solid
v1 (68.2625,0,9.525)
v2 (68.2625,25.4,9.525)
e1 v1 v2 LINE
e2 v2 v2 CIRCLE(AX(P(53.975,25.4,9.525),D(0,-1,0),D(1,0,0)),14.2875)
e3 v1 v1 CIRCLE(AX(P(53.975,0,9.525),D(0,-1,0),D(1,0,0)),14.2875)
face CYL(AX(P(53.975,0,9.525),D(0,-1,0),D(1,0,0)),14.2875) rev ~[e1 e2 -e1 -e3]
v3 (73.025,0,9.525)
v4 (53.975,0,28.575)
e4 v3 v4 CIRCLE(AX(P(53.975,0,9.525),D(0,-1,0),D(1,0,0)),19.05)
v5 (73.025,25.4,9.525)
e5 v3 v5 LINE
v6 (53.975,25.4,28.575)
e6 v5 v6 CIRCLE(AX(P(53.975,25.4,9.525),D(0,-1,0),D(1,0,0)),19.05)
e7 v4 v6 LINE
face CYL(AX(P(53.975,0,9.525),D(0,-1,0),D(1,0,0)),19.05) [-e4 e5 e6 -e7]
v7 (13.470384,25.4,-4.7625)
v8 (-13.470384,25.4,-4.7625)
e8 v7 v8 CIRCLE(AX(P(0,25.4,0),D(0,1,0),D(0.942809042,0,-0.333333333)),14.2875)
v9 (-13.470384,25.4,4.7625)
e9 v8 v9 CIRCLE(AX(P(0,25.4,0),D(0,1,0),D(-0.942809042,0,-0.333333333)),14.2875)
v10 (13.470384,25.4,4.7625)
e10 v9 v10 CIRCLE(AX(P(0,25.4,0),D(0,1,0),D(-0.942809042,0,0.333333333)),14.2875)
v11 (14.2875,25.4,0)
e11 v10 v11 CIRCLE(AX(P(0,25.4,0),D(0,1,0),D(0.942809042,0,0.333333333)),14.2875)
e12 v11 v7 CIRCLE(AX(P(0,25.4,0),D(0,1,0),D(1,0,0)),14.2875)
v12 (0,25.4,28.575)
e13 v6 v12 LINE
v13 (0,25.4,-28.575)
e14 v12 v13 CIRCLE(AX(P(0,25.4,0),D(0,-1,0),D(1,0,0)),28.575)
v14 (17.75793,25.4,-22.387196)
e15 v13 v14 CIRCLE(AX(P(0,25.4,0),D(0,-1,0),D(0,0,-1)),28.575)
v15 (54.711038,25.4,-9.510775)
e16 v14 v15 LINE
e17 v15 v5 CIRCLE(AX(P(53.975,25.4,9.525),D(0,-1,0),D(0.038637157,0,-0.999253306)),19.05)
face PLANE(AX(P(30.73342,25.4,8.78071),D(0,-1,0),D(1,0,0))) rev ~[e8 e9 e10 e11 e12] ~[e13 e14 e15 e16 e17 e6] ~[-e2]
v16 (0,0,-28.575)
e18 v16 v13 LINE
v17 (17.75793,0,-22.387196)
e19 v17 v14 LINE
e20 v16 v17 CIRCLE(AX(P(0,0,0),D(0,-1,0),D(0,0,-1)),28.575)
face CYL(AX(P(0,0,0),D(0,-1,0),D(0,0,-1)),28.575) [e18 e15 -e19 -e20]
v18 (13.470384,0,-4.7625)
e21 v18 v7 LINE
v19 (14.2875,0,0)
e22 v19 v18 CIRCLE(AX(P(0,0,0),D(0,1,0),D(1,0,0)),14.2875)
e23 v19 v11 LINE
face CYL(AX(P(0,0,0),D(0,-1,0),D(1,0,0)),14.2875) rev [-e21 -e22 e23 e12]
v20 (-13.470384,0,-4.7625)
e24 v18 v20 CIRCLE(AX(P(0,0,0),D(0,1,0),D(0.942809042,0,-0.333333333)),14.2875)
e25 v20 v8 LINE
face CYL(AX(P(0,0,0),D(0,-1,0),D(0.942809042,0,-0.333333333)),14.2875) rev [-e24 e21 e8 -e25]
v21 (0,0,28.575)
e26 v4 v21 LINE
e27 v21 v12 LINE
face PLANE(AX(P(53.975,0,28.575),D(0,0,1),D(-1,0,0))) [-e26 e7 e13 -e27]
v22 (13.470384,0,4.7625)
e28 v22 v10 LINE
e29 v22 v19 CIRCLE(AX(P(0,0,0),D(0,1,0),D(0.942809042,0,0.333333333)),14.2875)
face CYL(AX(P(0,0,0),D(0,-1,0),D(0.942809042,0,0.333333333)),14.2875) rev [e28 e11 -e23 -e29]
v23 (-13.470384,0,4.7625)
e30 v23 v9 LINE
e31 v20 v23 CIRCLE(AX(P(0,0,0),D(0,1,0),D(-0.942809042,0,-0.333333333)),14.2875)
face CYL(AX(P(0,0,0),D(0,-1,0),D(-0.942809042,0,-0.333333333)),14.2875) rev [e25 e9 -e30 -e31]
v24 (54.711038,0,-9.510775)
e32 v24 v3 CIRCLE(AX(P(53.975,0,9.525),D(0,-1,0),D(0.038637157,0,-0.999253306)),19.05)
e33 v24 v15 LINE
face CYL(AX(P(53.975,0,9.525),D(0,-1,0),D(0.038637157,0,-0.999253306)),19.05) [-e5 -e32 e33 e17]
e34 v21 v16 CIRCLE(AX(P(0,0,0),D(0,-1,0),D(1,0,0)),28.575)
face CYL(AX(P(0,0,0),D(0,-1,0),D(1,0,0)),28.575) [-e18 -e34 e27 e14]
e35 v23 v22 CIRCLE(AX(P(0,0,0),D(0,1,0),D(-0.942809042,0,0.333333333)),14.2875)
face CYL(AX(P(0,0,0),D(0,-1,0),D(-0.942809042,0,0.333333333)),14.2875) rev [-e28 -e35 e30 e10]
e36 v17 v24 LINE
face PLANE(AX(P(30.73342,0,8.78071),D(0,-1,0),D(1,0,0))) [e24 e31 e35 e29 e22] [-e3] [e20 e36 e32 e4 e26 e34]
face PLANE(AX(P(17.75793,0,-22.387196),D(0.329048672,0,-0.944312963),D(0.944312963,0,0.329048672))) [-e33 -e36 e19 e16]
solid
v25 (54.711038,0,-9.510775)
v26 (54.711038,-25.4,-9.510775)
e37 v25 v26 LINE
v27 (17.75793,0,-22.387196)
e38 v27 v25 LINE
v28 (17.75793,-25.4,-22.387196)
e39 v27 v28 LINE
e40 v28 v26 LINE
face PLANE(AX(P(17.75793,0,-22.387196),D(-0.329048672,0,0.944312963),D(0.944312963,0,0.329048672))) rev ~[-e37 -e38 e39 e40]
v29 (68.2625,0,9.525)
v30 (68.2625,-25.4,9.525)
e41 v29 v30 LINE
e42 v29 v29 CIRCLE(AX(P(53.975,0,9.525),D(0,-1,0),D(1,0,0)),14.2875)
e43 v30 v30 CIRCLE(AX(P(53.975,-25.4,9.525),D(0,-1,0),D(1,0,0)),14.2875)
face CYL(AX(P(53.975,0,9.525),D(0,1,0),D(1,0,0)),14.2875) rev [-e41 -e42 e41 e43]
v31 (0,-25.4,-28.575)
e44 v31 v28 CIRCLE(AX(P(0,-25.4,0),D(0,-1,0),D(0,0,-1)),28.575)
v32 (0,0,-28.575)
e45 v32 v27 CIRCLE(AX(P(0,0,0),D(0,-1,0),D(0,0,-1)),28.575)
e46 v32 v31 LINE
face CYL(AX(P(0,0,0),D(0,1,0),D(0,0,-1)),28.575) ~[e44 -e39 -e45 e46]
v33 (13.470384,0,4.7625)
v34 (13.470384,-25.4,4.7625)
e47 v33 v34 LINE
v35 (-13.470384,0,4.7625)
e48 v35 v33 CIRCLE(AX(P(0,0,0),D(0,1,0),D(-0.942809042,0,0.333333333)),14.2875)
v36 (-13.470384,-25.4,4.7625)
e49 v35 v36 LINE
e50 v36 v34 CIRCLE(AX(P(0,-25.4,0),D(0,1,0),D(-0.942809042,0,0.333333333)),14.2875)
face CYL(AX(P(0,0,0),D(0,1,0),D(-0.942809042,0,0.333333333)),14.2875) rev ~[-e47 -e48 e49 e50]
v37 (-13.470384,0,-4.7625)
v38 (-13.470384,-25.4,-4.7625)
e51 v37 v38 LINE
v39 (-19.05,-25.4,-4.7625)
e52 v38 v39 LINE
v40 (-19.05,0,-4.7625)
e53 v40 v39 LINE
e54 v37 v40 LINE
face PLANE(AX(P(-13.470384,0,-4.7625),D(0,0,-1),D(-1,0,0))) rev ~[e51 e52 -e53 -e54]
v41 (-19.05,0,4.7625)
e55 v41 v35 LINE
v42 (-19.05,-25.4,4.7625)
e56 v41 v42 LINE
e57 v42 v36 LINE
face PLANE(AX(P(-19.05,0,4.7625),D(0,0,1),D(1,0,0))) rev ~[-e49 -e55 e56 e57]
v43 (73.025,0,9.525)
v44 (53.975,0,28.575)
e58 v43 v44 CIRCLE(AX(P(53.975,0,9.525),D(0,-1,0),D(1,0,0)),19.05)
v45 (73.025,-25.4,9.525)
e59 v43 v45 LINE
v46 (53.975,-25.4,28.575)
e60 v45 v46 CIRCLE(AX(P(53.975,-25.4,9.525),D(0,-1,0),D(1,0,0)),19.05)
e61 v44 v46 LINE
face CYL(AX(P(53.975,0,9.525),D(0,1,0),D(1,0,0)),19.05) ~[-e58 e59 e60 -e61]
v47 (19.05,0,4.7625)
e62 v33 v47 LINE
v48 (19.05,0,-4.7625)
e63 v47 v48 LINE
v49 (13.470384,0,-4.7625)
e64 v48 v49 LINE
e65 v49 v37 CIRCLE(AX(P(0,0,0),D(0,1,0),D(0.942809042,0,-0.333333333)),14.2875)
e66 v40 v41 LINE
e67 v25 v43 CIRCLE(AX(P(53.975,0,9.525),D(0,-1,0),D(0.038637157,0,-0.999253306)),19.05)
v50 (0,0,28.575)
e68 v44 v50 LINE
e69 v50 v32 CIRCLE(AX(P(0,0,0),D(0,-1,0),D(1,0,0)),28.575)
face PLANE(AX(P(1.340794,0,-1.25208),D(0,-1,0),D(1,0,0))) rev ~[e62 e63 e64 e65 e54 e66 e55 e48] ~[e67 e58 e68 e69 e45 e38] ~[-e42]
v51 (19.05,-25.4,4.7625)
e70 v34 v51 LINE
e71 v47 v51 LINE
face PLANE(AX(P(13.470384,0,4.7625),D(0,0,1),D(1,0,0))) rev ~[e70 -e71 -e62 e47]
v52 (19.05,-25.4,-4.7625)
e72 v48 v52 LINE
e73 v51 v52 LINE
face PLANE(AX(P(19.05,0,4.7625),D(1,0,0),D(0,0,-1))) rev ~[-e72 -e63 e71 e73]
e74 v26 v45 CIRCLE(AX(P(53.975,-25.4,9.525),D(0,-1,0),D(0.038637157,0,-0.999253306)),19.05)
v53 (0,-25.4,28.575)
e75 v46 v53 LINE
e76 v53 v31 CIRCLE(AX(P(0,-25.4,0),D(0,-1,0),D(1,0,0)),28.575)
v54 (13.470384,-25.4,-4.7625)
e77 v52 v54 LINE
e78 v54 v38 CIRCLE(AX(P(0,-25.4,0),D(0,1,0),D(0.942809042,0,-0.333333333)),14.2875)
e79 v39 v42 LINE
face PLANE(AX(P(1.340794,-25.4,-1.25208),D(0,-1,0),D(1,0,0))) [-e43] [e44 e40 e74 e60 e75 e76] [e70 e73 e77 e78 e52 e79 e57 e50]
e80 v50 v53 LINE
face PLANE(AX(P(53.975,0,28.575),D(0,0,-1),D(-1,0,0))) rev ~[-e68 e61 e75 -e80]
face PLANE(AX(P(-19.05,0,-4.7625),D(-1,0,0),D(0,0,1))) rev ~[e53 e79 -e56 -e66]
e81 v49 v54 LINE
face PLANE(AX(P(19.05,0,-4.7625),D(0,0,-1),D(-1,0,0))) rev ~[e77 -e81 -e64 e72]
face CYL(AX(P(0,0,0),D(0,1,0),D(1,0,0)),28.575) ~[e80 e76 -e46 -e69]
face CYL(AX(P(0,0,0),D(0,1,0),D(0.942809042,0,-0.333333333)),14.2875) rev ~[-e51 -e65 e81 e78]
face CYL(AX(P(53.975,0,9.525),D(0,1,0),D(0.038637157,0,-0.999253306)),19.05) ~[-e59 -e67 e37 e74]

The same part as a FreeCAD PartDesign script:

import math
import FreeCAD as App
import Part
import Sketcher

V = App.Vector
Q = App.Units.Quantity

doc = App.newDocument("Part")
params = doc.addObject("Spreadsheet::Sheet", "Params")
for row, (alias, value) in enumerate([
    ("sketch1_radius", "0.75 in"),
    ("sketch1_diameter", "1.125 in"),
    ("sketch1_radius2", "1.125 in"),
    ("sketch1_width", "2.125 in"),
    ("pad1_length", "1 in"),
    ("sketch2_radius", "0.75 in"),
    ("sketch2_diameter", "1.125 in"),
    ("sketch2_radius2", "1.125 in"),
    ("sketch2_width", "2.125 in"),
    ("sketch2_height", "0.375 in"),
    ("pad2_length", "1 in"),
], start=1):
    params.set(f"A{row}", alias)
    params.set(f"B{row}", "=" + value)
    params.setAlias(f"B{row}", alias)

body = doc.addObject("PartDesign::Body", "Body")

# Sketch on XZ plane
sketch1 = doc.addObject("Sketcher::SketchObject", "Sketch")
body.addObject(sketch1)
sketch1.AttachmentSupport = (doc.XZ_Plane, [""])
sketch1.MapMode = "FlatFace"
sketch1.addGeometry([
    Part.LineSegment(V(17.8, -22.4, 0), V(54.7, -9.5, 0)),  # 0
    Part.ArcOfCircle(Part.Circle(V(54, 9.5, 0), V(0, 0, 1), 19.1), math.radians(-88), math.radians(0)),  # 1
    Part.ArcOfCircle(Part.Circle(V(54, 9.5, 0), V(0, 0, 1), 19.1), math.radians(0), math.radians(90)),  # 2
    Part.LineSegment(V(54, 28.6, 0), V(0, 28.6, 0)),  # 3
    Part.ArcOfCircle(Part.Circle(V(0, 0, 0), V(0, 0, 1), 28.6), math.radians(90), math.radians(270)),  # 4
    Part.ArcOfCircle(Part.Circle(V(0, 0, 0), V(0, 0, 1), 28.6), math.radians(-90), math.radians(-52)),  # 5
    Part.ArcOfCircle(Part.Circle(V(0, 0, 0), V(0, 0, 1), 14.3), math.radians(19), math.radians(161)),  # 6
    Part.ArcOfCircle(Part.Circle(V(0, 0, 0), V(0, 0, 1), 14.3), math.radians(0), math.radians(19.47)),  # 7
    Part.ArcOfCircle(Part.Circle(V(0, 0, 0), V(0, 0, 1), 14.3), math.radians(-19.47), math.radians(0)),  # 8
    Part.ArcOfCircle(Part.Circle(V(0, 0, 0), V(0, 0, 1), 14.3), math.radians(-161), math.radians(-19)),  # 9
    Part.ArcOfCircle(Part.Circle(V(0, 0, 0), V(0, 0, 1), 14.3), math.radians(161), math.radians(199)),  # 10
    Part.Circle(V(54, 9.5, 0), V(0, 0, 1), 14.3),  # 11
], False)
sketch1.addConstraint([
    Sketcher.Constraint("Coincident", 0, 2, 1, 1),
    Sketcher.Constraint("Tangent", 1, 2, 2, 1),
    Sketcher.Constraint("Tangent", 2, 2, 3, 1),
    Sketcher.Constraint("Tangent", 3, 2, 4, 1),
    Sketcher.Constraint("Tangent", 4, 2, 5, 1),
    Sketcher.Constraint("Coincident", 5, 2, 0, 1),
    Sketcher.Constraint("Tangent", 6, 1, 7, 2),
    Sketcher.Constraint("Tangent", 7, 1, 8, 2),
    Sketcher.Constraint("Tangent", 8, 1, 9, 2),
    Sketcher.Constraint("Tangent", 9, 1, 10, 2),
    Sketcher.Constraint("Tangent", 10, 1, 6, 2),
    Sketcher.Constraint("Horizontal", 3),
    Sketcher.Constraint("Coincident", 4, 3, -1, 1),
    Sketcher.Constraint("Coincident", 6, 3, -1, 1),
    Sketcher.Constraint("Coincident", 8, 3, -1, 1),
    Sketcher.Constraint("Coincident", 11, 3, 1, 3),
    Sketcher.Constraint("Equal", 1, 2),
    Sketcher.Constraint("Equal", 4, 5),
    Sketcher.Constraint("Equal", 10, 11),
    Sketcher.Constraint("PointOnObject", 4, 2, -2),
    Sketcher.Constraint("PointOnObject", 7, 1, -1),
    Sketcher.Constraint("Horizontal", 11, 3, 1, 2),
    Sketcher.Constraint("Horizontal", 8, 1, 9, 1),
    Sketcher.Constraint("Horizontal", 6, 1, 10, 1),
    Sketcher.Constraint("Vertical", 6, 1, 8, 1),
    Sketcher.Constraint("Radius", 1, Q("0.75 in")),
    Sketcher.Constraint("Diameter", 11, Q("1.125 in")),
    Sketcher.Constraint("Radius", 4, Q("1.125 in")),
    Sketcher.Constraint("DistanceX", 3, 2, 3, 1, Q("2.125 in")),
    Sketcher.Constraint("DistanceY", -1, 1, 6, 1, Q("0.1875 in")),
    Sketcher.Constraint("Distance", 0, 39.132268),
    Sketcher.Constraint("DistanceX", -1, 1, 5, 2, 17.75793),
])
sketch1.setExpression("Constraints[25]", "Params.sketch1_radius")
sketch1.setExpression("Constraints[26]", "Params.sketch1_diameter")
sketch1.setExpression("Constraints[27]", "Params.sketch1_radius2")
sketch1.setExpression("Constraints[28]", "Params.sketch1_width")
pad1 = doc.addObject("PartDesign::Pad", "Pad")
body.addObject(pad1)
pad1.Profile = sketch1
pad1.setExpression("Length", "Params.pad1_length")
pad1.Reversed = True
body2 = doc.addObject("PartDesign::Body", "Body001")

# Sketch on XZ plane
sketch2 = doc.addObject("Sketcher::SketchObject", "Sketch001")
body2.addObject(sketch2)
sketch2.AttachmentSupport = (doc.getObject("XZ_Plane001"), [""])
sketch2.MapMode = "FlatFace"
sketch2.addGeometry([
    Part.LineSegment(V(18, -22, 0), V(55, -10, 0)),  # 0
    Part.ArcOfCircle(Part.Circle(V(54, 10, 0), V(0, 0, 1), 19), math.radians(-88), math.radians(0)),  # 1
    Part.ArcOfCircle(Part.Circle(V(54, 10, 0), V(0, 0, 1), 19), math.radians(0), math.radians(90)),  # 2
    Part.LineSegment(V(54, 29, 0), V(0, 29, 0)),  # 3
    Part.ArcOfCircle(Part.Circle(V(0, 0, 0), V(0, 0, 1), 29), math.radians(90), math.radians(270)),  # 4
    Part.ArcOfCircle(Part.Circle(V(0, 0, 0), V(0, 0, 1), 29), math.radians(-90), math.radians(-52)),  # 5
    Part.LineSegment(V(-19, 5, 0), V(-13, 5, 0)),  # 6
    Part.ArcOfCircle(Part.Circle(V(0, 0, 0), V(0, 0, 1), 14), math.radians(19), math.radians(161)),  # 7
    Part.LineSegment(V(13, 5, 0), V(19, 5, 0)),  # 8
    Part.LineSegment(V(19, 5, 0), V(19, -5, 0)),  # 9
    Part.LineSegment(V(19, -5, 0), V(13, -5, 0)),  # 10
    Part.ArcOfCircle(Part.Circle(V(0, 0, 0), V(0, 0, 1), 14), math.radians(-161), math.radians(-19)),  # 11
    Part.LineSegment(V(-13, -5, 0), V(-19, -5, 0)),  # 12
    Part.LineSegment(V(-19, -5, 0), V(-19, 5, 0)),  # 13
    Part.Circle(V(54, 10, 0), V(0, 0, 1), 14),  # 14
], False)
sketch2.addConstraint([
    Sketcher.Constraint("Coincident", 0, 2, 1, 1),
    Sketcher.Constraint("Tangent", 1, 2, 2, 1),
    Sketcher.Constraint("Tangent", 2, 2, 3, 1),
    Sketcher.Constraint("Tangent", 3, 2, 4, 1),
    Sketcher.Constraint("Tangent", 4, 2, 5, 1),
    Sketcher.Constraint("Coincident", 5, 2, 0, 1),
    Sketcher.Constraint("Coincident", 6, 2, 7, 2),
    Sketcher.Constraint("Coincident", 7, 1, 8, 1),
    Sketcher.Constraint("Coincident", 8, 2, 9, 1),
    Sketcher.Constraint("Coincident", 9, 2, 10, 1),
    Sketcher.Constraint("Coincident", 10, 2, 11, 2),
    Sketcher.Constraint("Coincident", 11, 1, 12, 1),
    Sketcher.Constraint("Coincident", 12, 2, 13, 1),
    Sketcher.Constraint("Coincident", 13, 2, 6, 1),
    Sketcher.Constraint("Horizontal", 3),
    Sketcher.Constraint("Horizontal", 6),
    Sketcher.Constraint("Horizontal", 8),
    Sketcher.Constraint("Vertical", 9),
    Sketcher.Constraint("Horizontal", 10),
    Sketcher.Constraint("Horizontal", 12),
    Sketcher.Constraint("Vertical", 13),
    Sketcher.Constraint("Coincident", 4, 3, -1, 1),
    Sketcher.Constraint("Coincident", 7, 3, -1, 1),
    Sketcher.Constraint("Coincident", 11, 3, -1, 1),
    Sketcher.Constraint("Coincident", 14, 3, 1, 3),
    Sketcher.Constraint("Equal", 1, 2),
    Sketcher.Constraint("Equal", 4, 5),
    Sketcher.Constraint("Equal", 7, 11),
    Sketcher.Constraint("Equal", 11, 14),
    Sketcher.Constraint("Symmetric", 8, 2, 12, 2, -1, 1),
    Sketcher.Constraint("PointOnObject", 4, 2, -2),
    Sketcher.Constraint("Horizontal", 14, 3, 1, 2),
    Sketcher.Constraint("Horizontal", 6, 2, 7, 1),
    Sketcher.Constraint("Horizontal", 10, 2, 11, 1),
    Sketcher.Constraint("Radius", 1, Q("0.75 in")),
    Sketcher.Constraint("Diameter", 14, Q("1.125 in")),
    Sketcher.Constraint("Radius", 4, Q("1.125 in")),
    Sketcher.Constraint("DistanceX", 3, 2, 3, 1, Q("2.125 in")),
    Sketcher.Constraint("DistanceY", 9, 2, 9, 1, Q("0.375 in")),
    Sketcher.Constraint("DistanceX", -1, 1, 8, 2, Q("0.75 in")),
    Sketcher.Constraint("Distance", 0, 39.132268),
    Sketcher.Constraint("DistanceX", -1, 1, 5, 2, 17.75793),
])
sketch2.setExpression("Constraints[34]", "Params.sketch2_radius")
sketch2.setExpression("Constraints[35]", "Params.sketch2_diameter")
sketch2.setExpression("Constraints[36]", "Params.sketch2_radius2")
sketch2.setExpression("Constraints[37]", "Params.sketch2_width")
sketch2.setExpression("Constraints[38]", "Params.sketch2_height")
pad2 = doc.addObject("PartDesign::Pad", "Pad001")
body2.addObject(pad2)
pad2.Profile = sketch2
pad2.setExpression("Length", "Params.pad2_length")

doc.recompute()
